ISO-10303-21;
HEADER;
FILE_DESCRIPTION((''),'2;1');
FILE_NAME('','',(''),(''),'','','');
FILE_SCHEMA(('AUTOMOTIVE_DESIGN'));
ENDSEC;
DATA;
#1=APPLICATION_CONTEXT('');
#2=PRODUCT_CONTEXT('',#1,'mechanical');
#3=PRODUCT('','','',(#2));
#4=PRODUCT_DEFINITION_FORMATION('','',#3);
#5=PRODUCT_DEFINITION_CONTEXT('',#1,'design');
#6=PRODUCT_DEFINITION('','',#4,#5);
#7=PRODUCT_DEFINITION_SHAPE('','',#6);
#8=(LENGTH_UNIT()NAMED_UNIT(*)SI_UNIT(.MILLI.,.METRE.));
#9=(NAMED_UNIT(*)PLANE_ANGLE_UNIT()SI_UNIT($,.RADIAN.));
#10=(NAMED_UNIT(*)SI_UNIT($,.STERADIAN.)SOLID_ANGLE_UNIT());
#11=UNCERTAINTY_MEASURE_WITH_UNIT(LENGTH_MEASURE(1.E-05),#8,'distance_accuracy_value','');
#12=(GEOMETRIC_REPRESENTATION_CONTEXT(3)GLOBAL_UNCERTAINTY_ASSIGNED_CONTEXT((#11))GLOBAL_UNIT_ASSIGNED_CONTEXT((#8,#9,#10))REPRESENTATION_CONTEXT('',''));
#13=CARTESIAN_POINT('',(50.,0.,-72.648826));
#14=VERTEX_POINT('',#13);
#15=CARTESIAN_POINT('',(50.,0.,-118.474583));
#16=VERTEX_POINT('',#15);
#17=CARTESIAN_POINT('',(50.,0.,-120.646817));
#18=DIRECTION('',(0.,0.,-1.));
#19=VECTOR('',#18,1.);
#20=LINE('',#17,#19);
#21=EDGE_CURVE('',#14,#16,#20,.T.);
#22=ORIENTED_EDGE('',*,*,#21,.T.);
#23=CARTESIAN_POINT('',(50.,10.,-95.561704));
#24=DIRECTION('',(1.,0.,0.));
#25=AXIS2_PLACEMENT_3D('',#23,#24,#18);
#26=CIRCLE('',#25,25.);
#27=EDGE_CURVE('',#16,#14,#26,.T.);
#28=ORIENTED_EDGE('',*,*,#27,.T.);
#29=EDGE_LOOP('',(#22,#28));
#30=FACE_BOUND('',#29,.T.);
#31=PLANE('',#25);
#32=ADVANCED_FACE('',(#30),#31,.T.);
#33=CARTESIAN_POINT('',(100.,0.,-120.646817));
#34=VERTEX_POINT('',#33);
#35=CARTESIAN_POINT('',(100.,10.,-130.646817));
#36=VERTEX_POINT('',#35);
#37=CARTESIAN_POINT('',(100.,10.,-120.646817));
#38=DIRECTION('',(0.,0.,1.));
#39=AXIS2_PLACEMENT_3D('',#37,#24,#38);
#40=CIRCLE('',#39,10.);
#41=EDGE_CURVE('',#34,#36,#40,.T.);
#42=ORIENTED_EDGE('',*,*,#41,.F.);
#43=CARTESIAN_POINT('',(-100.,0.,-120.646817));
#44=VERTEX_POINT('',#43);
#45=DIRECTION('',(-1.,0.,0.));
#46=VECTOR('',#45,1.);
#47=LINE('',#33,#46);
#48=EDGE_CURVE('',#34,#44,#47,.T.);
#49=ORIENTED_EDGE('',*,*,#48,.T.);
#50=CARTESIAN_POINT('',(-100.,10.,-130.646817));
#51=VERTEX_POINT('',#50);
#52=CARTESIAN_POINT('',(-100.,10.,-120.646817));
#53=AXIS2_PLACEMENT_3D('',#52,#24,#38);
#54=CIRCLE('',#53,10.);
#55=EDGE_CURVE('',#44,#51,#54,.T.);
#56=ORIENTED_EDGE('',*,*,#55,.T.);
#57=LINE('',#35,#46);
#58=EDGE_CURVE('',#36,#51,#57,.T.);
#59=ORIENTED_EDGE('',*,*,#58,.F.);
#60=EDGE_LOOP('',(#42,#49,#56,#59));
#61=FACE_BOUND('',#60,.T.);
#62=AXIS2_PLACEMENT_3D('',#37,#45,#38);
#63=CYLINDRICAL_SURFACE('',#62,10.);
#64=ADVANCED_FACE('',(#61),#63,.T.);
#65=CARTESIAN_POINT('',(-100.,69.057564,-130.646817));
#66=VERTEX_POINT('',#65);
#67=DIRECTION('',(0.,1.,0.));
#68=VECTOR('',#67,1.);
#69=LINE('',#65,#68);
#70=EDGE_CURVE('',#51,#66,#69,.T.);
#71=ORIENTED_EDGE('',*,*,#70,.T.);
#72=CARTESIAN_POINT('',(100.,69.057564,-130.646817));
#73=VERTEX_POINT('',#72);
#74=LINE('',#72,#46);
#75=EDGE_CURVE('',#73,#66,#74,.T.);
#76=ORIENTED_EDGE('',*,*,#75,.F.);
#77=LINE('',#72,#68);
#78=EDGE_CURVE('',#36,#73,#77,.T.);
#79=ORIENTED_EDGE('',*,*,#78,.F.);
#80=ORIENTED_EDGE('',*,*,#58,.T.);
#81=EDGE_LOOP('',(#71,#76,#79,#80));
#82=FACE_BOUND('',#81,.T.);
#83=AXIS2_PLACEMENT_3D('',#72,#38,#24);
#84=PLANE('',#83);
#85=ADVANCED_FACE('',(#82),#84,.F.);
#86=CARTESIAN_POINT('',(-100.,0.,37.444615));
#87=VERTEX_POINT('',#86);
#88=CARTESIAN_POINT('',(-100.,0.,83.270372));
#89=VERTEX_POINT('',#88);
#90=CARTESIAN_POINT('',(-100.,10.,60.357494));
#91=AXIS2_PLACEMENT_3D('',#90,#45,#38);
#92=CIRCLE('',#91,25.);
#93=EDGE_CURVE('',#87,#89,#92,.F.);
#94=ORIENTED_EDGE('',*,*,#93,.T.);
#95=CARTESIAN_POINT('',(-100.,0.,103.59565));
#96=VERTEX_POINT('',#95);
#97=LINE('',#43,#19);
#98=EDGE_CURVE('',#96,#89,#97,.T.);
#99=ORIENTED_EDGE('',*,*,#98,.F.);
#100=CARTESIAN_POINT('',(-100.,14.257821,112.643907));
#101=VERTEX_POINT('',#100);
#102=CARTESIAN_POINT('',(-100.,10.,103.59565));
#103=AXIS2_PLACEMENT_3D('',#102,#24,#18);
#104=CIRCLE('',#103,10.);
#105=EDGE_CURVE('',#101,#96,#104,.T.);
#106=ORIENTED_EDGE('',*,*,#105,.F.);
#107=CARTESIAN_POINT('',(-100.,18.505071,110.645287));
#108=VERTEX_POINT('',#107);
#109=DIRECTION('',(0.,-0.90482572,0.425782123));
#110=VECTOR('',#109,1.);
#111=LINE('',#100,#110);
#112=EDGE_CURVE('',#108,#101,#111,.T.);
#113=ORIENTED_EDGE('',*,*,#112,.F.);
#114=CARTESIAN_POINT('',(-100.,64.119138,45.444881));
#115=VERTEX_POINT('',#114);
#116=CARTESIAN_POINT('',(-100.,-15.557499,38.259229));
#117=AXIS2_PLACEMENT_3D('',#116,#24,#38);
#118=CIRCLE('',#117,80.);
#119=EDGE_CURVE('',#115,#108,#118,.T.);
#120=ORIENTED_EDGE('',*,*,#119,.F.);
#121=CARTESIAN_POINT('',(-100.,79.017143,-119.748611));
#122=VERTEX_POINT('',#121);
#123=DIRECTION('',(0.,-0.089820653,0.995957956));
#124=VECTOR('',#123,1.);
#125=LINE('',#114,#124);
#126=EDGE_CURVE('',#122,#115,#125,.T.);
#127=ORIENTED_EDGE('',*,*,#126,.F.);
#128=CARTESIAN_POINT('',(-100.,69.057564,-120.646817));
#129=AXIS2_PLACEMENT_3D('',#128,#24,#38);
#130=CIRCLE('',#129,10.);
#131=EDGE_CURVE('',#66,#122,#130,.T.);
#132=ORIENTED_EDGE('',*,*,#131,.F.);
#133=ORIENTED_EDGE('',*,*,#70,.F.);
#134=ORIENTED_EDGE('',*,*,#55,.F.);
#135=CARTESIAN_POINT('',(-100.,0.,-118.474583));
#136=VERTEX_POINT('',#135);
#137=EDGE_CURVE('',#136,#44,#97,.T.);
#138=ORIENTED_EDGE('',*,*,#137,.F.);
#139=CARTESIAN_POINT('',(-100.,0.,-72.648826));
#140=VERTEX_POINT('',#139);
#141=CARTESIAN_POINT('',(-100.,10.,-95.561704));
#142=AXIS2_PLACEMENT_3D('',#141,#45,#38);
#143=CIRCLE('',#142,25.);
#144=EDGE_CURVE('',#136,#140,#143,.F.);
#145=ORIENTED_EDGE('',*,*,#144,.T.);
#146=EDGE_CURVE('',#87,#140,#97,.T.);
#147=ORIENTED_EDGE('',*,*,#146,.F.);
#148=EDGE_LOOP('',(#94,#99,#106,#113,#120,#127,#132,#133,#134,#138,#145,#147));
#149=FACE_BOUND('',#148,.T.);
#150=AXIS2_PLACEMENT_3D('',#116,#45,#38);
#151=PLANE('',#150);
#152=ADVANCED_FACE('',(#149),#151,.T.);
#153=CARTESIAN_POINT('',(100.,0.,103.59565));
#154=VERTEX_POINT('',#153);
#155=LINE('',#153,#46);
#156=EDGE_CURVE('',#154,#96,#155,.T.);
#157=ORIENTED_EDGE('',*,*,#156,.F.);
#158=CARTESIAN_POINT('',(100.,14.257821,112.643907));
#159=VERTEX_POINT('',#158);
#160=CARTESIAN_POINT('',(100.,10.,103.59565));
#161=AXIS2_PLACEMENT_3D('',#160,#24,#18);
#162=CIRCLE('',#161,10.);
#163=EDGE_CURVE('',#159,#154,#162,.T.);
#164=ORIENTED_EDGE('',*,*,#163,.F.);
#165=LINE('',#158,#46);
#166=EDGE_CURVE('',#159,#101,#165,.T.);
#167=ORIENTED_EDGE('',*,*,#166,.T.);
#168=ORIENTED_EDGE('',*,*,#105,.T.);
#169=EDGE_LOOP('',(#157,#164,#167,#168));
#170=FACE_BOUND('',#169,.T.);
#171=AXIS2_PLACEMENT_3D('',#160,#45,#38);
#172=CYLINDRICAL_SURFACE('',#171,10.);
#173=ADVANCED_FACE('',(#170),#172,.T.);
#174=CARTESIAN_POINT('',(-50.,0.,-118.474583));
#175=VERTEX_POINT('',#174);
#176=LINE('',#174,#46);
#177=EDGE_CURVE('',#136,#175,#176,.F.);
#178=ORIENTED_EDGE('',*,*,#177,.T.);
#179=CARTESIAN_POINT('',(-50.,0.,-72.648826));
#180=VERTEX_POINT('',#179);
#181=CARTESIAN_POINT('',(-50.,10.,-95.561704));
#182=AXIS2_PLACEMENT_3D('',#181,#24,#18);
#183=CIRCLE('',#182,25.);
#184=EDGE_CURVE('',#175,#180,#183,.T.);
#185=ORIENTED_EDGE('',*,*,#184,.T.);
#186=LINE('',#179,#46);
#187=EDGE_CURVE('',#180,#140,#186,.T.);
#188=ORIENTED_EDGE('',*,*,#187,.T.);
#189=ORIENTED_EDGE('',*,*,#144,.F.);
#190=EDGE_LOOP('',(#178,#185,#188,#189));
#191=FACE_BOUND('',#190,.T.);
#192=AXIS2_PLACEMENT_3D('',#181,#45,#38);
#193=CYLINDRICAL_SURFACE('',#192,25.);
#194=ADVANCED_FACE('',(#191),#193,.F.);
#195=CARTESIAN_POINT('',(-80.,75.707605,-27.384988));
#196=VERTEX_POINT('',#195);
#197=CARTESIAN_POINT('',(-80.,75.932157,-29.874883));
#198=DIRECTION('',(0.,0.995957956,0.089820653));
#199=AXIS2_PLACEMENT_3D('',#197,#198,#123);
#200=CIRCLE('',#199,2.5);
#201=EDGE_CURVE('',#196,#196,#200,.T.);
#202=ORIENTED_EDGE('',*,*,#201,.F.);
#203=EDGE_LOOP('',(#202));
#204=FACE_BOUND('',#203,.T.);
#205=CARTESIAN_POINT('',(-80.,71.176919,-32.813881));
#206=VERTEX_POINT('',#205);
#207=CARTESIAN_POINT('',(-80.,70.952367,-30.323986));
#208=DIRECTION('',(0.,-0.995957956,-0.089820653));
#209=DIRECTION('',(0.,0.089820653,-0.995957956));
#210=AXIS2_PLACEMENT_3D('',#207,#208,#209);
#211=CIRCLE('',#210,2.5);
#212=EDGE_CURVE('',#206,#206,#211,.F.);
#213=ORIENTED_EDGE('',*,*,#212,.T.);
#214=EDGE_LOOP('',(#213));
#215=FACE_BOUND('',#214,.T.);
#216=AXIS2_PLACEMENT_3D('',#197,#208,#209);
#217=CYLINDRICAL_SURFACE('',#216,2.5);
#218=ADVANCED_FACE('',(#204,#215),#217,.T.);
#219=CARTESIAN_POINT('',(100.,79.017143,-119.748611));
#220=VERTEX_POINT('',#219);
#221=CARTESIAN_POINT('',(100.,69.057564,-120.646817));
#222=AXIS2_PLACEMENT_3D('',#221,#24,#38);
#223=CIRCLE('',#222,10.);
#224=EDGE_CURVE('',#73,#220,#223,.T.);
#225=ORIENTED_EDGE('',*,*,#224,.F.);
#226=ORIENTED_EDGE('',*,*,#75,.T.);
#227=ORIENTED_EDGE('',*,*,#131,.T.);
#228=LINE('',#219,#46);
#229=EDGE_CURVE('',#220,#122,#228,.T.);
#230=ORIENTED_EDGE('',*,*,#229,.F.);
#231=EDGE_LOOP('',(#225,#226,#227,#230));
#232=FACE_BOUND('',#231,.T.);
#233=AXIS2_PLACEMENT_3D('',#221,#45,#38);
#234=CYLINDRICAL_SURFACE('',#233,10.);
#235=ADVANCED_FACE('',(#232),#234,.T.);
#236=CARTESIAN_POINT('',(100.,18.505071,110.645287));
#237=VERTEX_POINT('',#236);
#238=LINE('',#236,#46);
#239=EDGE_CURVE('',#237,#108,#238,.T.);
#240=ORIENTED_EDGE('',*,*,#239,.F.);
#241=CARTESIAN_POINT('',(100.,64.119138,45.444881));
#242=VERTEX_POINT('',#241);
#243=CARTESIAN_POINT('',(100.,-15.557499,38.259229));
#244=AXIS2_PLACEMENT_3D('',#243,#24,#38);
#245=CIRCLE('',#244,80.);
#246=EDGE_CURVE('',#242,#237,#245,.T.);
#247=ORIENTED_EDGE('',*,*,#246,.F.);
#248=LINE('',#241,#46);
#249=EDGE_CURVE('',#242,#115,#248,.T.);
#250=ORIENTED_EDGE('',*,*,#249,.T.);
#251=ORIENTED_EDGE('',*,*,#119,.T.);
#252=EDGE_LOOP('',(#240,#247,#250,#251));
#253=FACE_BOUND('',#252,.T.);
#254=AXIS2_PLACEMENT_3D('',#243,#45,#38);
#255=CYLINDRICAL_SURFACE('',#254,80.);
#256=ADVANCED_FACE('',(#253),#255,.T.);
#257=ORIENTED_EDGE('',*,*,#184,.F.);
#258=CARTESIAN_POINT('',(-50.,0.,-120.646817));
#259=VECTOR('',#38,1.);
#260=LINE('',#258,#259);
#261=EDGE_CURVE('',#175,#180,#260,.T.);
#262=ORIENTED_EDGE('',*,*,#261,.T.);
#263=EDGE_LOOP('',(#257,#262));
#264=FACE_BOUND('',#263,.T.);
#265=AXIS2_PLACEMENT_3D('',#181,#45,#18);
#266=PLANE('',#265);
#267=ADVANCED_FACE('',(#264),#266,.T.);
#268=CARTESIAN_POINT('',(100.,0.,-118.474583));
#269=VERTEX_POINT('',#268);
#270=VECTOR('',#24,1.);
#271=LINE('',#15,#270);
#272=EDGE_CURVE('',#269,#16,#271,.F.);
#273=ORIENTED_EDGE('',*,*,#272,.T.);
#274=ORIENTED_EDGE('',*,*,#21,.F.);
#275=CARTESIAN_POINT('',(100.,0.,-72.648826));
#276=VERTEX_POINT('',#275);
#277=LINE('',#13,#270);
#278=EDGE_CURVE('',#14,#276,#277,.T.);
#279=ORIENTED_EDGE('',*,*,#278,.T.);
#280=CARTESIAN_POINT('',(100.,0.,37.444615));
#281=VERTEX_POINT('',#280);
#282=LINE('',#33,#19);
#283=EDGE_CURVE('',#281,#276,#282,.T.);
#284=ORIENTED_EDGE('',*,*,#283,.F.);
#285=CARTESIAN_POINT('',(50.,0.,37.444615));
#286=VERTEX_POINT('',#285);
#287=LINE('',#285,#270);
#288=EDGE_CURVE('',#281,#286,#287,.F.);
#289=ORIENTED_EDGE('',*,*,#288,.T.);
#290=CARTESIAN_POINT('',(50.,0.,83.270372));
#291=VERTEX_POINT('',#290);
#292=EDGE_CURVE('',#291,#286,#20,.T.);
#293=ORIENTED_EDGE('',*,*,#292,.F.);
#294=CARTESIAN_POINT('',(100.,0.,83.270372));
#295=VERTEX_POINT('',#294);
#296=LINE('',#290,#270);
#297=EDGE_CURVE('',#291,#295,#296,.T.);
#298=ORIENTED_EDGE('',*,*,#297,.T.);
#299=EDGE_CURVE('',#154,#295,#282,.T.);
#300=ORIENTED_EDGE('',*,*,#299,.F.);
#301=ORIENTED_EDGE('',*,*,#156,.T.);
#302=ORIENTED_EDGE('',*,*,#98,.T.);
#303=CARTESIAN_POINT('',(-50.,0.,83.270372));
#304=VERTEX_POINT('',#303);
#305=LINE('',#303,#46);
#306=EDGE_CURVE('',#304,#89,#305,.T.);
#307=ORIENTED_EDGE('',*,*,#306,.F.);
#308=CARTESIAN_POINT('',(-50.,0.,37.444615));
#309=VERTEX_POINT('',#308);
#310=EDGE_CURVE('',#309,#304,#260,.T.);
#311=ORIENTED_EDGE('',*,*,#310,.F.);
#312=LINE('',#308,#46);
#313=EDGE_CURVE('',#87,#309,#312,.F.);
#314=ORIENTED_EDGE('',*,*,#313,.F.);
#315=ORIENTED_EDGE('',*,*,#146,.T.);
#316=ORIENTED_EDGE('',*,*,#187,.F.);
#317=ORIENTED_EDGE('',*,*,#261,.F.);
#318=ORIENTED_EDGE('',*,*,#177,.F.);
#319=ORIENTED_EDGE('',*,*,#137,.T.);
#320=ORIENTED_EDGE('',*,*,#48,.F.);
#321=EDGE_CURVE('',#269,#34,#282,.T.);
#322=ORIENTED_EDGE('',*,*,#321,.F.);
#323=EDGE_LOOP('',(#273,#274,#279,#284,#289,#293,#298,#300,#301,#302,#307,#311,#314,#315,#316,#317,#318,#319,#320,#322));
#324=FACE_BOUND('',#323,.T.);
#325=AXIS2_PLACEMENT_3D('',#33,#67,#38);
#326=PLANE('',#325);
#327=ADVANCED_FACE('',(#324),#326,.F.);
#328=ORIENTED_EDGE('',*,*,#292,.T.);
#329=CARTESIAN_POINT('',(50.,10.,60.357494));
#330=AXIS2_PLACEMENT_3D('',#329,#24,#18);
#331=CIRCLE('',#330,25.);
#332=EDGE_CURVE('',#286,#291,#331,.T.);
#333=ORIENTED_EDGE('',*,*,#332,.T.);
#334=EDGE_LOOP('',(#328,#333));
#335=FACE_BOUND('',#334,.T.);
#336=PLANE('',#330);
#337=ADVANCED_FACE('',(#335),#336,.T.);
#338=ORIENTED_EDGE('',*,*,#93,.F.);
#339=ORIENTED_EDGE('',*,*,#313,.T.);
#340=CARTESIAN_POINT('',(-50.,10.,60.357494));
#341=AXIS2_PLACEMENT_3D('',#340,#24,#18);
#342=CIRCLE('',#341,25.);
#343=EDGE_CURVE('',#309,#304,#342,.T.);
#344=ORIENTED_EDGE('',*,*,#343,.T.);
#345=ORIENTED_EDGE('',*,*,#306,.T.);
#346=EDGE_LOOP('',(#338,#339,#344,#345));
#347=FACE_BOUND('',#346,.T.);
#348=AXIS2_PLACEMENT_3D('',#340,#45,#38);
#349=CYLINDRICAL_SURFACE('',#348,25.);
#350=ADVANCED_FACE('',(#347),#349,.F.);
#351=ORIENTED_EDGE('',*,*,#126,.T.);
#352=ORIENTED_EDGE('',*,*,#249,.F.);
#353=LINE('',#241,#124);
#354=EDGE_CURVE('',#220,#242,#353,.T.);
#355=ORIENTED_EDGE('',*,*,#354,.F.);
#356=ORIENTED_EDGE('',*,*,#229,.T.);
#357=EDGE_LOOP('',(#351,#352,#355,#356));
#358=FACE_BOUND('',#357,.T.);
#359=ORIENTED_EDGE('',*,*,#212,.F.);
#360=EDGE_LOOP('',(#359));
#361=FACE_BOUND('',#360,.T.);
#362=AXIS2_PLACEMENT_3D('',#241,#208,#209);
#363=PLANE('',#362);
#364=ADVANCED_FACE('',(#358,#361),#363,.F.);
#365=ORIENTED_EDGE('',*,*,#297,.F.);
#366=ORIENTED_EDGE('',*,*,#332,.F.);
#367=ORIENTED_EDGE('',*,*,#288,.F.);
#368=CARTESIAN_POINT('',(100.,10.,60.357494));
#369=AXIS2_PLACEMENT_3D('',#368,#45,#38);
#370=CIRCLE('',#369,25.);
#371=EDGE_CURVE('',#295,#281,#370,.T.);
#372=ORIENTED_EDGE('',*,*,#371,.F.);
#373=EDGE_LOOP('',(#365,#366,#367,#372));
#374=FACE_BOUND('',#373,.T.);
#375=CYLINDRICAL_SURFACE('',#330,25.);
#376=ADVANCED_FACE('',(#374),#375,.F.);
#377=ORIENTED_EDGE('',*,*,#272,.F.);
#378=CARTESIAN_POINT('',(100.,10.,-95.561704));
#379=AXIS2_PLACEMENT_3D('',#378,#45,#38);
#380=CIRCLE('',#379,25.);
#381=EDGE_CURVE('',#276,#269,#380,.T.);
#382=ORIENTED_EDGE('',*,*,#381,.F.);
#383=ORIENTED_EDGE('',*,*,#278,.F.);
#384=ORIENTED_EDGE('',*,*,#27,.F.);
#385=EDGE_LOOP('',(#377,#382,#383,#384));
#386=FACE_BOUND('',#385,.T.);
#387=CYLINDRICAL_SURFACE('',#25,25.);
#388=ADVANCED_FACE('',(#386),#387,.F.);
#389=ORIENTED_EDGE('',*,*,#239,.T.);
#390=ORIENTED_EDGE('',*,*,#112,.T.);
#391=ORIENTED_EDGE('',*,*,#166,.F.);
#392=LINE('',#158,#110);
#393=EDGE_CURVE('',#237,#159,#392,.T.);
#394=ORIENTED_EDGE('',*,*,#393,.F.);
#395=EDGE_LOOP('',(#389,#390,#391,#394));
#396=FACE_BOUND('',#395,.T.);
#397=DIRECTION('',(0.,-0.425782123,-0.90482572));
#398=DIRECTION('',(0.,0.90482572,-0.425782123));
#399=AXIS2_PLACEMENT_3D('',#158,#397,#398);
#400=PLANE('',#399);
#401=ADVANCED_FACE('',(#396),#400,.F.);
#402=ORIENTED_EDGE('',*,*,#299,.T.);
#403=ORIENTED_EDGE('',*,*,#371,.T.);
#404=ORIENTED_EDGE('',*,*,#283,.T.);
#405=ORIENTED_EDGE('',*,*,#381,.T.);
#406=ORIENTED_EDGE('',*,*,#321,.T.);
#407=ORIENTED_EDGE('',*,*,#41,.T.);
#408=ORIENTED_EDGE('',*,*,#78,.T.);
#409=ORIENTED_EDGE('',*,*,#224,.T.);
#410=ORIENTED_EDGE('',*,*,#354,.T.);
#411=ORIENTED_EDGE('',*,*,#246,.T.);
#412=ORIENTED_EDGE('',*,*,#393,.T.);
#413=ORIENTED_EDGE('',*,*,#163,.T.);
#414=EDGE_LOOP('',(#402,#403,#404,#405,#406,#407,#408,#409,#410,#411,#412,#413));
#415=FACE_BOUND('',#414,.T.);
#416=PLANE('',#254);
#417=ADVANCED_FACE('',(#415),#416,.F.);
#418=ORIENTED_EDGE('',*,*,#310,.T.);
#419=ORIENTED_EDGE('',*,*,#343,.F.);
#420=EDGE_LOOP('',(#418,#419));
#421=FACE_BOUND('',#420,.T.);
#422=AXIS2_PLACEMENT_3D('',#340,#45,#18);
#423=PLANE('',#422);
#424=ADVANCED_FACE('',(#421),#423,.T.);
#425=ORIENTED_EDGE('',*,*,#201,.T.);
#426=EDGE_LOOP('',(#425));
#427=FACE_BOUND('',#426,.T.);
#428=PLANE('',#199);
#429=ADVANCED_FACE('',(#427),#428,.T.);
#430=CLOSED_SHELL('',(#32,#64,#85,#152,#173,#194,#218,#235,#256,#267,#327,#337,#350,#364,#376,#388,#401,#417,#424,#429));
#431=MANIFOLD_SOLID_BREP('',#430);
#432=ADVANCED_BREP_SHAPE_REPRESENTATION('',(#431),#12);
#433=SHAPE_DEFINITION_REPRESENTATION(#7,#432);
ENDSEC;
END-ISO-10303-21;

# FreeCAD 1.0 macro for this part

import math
import FreeCAD as App
import Part
import Sketcher

doc = App.newDocument("Part")
body = doc.addObject("PartDesign::Body", "Body")

# Sketch on YZ plane
sketch1 = body.newObject("Sketcher::SketchObject", "Sketch")
sketch1.AttachmentSupport = (doc.getObject("YZ_Plane"), [""])
sketch1.MapMode = "FlatFace"
sketch1.addGeometry([
    Part.LineSegment(App.Vector(18.505071, 110.645287, 0), App.Vector(14.257821, 112.643907, 0)),  # 0
    Part.ArcOfCircle(Part.Circle(App.Vector(10, 103.59565, 0), App.Vector(0, 0, 1), 10), math.radians(64.799821), math.radians(180)),  # 1
    Part.LineSegment(App.Vector(0, 103.59565, 0), App.Vector(0, -120.646817, 0)),  # 2
    Part.ArcOfCircle(Part.Circle(App.Vector(10, -120.646817, 0), App.Vector(0, 0, 1), 10), math.radians(180), math.radians(270)),  # 3
    Part.LineSegment(App.Vector(10, -130.646817, 0), App.Vector(69.057564, -130.646817, 0)),  # 4
    Part.ArcOfCircle(Part.Circle(App.Vector(69.057564, -120.646817, 0), App.Vector(0, 0, 1), 10), math.radians(-90), math.radians(5.153289)),  # 5
    Part.LineSegment(App.Vector(79.017143, -119.748611, 0), App.Vector(64.119138, 45.444881, 0)),  # 6
    Part.ArcOfCircle(Part.Circle(App.Vector(-15.557499, 38.259229, 0), App.Vector(0, 0, 1), 80), math.radians(5.153289), math.radians(64.799821)),  # 7
], False)
sketch1.addConstraint([
    Sketcher.Constraint("Tangent", 0, 2, 1, 1),
    Sketcher.Constraint("Tangent", 1, 2, 2, 1),
    Sketcher.Constraint("Tangent", 2, 2, 3, 1),
    Sketcher.Constraint("Tangent", 3, 2, 4, 1),
    Sketcher.Constraint("Tangent", 4, 2, 5, 1),
    Sketcher.Constraint("Tangent", 5, 2, 6, 1),
    Sketcher.Constraint("Tangent", 6, 2, 7, 1),
    Sketcher.Constraint("Tangent", 7, 2, 0, 1),
    Sketcher.Constraint("Vertical", 2),
    Sketcher.Constraint("Horizontal", 4),
    Sketcher.Constraint("Equal", 1, 3),
    Sketcher.Constraint("Equal", 3, 5),
    Sketcher.Constraint("PointOnObject", 1, 2, -2),
    Sketcher.Constraint("Radius", 1, 10.0),
    Sketcher.Constraint("Radius", 7, 80.0),
    Sketcher.Constraint("DistanceX", 7, 3, -1, 1, 15.557499),
    Sketcher.Constraint("Distance", 6, 165.863921),
    Sketcher.Constraint("DistanceX", 4, 1, 4, 2, 59.057564),
    Sketcher.Constraint("DistanceY", 2, 2, 2, 1, 224.242467),
    Sketcher.Constraint("DistanceY", -1, 1, 1, 3, 103.59565),
])
pad1 = body.newObject("PartDesign::Pad", "Pad")
pad1.Profile = sketch1
pad1.Length = 200
pad1.Midplane = True

# Sketch on YZ plane
sketch2 = body.newObject("Sketcher::SketchObject", "Sketch001")
sketch2.AttachmentSupport = (doc.getObject("YZ_Plane"), [""])
sketch2.MapMode = "FlatFace"
sketch2.AttachmentOffset = App.Placement(App.Vector(0, 0, 100), App.Rotation())
sketch2.addGeometry([
    Part.Circle(App.Vector(10, 60.357494, 0), App.Vector(0, 0, 1), 25),
    Part.Circle(App.Vector(10, -95.561704, 0), App.Vector(0, 0, 1), 25),
], False)
sketch2.addConstraint([
    Sketcher.Constraint("Equal", 0, 1),
    Sketcher.Constraint("Vertical", 0, 3, 1, 3),
    Sketcher.Constraint("Diameter", 0, 50.0),
    Sketcher.Constraint("DistanceX", -1, 1, 0, 3, 10.0),
    Sketcher.Constraint("DistanceY", 1, 3, 0, 3, 155.919198),
    Sketcher.Constraint("DistanceY", -1, 1, 0, 3, 60.357494),
])
pocket1 = body.newObject("PartDesign::Pocket", "Pocket")
pocket1.Profile = sketch2
pocket1.Length = 50
doc.recompute()

mirrored = body.newObject("PartDesign::Mirrored", "Mirrored")
mirrored.Originals = [pocket1]
mirrored.MirrorPlane = (doc.getObject("YZ_Plane"), [""])
body.Tip = mirrored

# Sketch on an angled plane
sketch3 = body.newObject("Sketcher::SketchObject", "Sketch002")
sketch3.Placement = App.Placement(App.Vector(0, 67.66723, 6.102582), App.Rotation(App.Vector(1, 0, 0), App.Vector(0, 0.089820653, -0.995957956), App.Vector(0, 0.995957956, 0.089820653), "ZXY"))
sketch3.addGeometry(Part.Circle(App.Vector(-80, 36.574403, 0), App.Vector(0, 0, 1), 2.5), False)
sketch3.addConstraint([
    Sketcher.Constraint("Diameter", 0, 5.0),
    Sketcher.Constraint("DistanceX", 0, 3, -1, 1, 80.0),
    Sketcher.Constraint("DistanceY", -1, 1, 0, 3, 36.574403),
])
pad2 = body.newObject("PartDesign::Pad", "Pad001")
pad2.Profile = sketch3
pad2.Length = 5

doc.recompute()
